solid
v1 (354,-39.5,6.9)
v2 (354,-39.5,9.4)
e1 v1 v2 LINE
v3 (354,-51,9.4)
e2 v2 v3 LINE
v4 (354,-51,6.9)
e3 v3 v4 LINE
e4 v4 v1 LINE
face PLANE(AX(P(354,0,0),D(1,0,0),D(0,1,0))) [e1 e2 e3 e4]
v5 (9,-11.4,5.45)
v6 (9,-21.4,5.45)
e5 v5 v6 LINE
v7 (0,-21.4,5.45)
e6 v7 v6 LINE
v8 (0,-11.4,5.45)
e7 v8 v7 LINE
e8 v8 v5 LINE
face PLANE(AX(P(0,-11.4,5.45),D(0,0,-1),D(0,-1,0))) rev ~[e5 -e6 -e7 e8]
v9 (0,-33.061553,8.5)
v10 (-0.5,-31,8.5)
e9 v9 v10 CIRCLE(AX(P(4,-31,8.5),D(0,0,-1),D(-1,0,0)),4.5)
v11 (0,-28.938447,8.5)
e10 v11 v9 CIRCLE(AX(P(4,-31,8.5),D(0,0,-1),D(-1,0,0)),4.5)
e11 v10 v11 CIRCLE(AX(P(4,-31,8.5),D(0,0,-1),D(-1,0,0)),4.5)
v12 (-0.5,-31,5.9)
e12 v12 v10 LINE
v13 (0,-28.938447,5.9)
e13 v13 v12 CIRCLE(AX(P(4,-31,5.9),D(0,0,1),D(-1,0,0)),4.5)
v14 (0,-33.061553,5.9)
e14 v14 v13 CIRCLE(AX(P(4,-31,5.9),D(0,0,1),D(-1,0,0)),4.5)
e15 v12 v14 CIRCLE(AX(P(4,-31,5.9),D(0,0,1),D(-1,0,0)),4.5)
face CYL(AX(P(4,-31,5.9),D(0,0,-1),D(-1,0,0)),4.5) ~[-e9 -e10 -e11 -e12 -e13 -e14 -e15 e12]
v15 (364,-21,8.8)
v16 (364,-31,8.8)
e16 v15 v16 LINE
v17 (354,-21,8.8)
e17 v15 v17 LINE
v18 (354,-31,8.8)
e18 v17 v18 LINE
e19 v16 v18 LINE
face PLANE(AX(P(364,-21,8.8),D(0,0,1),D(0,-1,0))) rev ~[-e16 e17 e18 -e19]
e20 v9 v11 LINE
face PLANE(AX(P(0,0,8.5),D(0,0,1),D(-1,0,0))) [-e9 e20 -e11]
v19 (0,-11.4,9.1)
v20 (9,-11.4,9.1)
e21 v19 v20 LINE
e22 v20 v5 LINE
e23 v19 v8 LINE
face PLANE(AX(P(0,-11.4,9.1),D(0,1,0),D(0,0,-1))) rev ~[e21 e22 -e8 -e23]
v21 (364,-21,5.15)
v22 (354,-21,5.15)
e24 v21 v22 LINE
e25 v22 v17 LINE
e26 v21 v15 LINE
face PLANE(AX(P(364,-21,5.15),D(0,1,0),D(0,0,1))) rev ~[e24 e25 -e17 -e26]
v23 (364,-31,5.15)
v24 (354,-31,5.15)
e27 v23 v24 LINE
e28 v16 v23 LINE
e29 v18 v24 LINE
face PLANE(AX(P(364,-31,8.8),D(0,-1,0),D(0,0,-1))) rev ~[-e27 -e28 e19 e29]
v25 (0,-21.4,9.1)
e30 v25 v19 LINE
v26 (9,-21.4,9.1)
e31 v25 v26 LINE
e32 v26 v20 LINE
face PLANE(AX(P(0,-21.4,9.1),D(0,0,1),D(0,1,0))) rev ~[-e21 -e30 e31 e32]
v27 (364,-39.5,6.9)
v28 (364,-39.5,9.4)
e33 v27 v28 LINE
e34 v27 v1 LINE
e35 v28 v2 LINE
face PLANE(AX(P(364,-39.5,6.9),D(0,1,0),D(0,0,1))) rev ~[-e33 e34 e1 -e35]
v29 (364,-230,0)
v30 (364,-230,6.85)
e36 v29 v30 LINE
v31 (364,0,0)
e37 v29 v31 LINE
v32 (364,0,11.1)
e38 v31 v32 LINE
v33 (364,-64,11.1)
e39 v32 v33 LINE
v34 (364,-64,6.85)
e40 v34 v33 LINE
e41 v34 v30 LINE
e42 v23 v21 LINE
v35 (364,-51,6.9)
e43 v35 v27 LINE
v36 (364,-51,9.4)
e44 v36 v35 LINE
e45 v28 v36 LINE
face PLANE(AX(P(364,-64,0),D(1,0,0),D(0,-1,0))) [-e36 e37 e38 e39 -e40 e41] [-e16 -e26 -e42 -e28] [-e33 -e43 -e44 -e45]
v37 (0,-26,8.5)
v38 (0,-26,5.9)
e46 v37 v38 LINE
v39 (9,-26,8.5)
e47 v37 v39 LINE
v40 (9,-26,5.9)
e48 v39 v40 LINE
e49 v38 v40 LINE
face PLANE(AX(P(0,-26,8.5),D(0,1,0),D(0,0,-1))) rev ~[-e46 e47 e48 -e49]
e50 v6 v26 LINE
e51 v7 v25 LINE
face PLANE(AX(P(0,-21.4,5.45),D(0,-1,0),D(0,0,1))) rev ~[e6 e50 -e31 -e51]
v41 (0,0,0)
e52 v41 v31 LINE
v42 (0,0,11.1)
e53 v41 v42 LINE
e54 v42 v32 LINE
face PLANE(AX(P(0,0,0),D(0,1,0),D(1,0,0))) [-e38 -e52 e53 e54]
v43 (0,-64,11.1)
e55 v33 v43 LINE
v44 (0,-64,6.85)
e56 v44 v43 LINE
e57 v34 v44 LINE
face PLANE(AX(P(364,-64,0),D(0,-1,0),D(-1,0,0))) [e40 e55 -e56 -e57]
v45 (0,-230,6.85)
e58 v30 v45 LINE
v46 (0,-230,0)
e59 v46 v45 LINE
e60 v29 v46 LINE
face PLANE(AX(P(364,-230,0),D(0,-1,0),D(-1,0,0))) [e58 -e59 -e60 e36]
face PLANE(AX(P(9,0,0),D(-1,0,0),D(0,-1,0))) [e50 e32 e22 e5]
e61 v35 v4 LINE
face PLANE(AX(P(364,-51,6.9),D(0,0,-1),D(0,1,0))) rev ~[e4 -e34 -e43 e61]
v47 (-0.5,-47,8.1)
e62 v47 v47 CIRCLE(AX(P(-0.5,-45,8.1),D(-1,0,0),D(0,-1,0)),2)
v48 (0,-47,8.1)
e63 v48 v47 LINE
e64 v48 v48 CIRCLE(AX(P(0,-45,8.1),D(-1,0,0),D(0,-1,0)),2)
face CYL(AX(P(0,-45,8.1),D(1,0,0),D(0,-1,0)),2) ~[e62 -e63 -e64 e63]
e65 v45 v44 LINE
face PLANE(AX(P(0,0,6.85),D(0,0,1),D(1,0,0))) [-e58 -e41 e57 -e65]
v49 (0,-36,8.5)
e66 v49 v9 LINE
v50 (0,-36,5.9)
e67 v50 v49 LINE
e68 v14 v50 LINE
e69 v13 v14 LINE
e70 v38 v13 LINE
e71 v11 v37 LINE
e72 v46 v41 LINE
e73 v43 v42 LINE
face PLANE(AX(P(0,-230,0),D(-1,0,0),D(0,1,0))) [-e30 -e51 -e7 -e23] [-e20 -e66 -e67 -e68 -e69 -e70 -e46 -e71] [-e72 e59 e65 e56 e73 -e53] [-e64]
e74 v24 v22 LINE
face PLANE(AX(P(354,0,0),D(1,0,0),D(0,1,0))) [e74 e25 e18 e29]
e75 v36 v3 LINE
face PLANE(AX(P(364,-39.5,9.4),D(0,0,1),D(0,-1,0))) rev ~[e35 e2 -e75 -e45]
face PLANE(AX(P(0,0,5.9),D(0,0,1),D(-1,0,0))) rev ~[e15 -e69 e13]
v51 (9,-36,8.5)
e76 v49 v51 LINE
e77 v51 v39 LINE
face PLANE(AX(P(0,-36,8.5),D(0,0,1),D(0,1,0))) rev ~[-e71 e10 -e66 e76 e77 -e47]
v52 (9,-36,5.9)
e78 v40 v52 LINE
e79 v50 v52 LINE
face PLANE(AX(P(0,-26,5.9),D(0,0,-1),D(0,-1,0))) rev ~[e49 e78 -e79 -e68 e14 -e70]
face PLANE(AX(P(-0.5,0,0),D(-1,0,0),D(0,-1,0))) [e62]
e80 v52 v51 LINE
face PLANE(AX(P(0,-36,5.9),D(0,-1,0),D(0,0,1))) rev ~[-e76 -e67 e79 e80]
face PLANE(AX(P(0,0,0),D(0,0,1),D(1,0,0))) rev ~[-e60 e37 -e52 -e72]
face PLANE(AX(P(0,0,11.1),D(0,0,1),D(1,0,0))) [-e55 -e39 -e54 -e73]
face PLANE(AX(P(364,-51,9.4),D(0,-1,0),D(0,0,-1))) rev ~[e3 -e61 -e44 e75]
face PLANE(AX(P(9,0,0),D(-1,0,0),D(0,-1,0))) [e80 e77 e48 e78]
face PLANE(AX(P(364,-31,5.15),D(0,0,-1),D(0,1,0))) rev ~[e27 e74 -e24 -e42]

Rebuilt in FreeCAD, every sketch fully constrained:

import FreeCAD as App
import Part
import Sketcher
from FreeCAD import Vector
Q = App.Units.Quantity


def add_polygon(sketch, points):
    """Adds a closed chain of lines whose ends are joined by coincident constraints."""
    first, n = sketch.GeometryCount, len(points)
    for a, b in zip(points, points[1:] + points[:1]):
        sketch.addGeometry(Part.LineSegment(App.Vector(*a, 0), App.Vector(*b, 0)), False)
    for i in range(n):
        sketch.addConstraint(Sketcher.Constraint("Coincident", first + i, 2, first + (i + 1) % n, 1))

doc = App.newDocument("Part")
body = doc.addObject("PartDesign::Body", "Body")

# Sketch on XY plane
sketch1 = body.newObject("Sketcher::SketchObject", "Sketch")
sketch1.AttachmentSupport = (doc.getObject("XY_Plane"), [""])
sketch1.MapMode = "FlatFace"
add_polygon(sketch1, [(364, -64), (0, -64), (0, -230), (364, -230)])  # lines 0-3
sketch1.addConstraint([
    Sketcher.Constraint("Horizontal", 0),
    Sketcher.Constraint("Vertical", 1),
    Sketcher.Constraint("Horizontal", 2),
    Sketcher.Constraint("Vertical", 3),
    Sketcher.Constraint("PointOnObject", 0, 2, -2),
    Sketcher.Constraint("DistanceX", 0, 2, 0, 1, Q("364 mm")),
    Sketcher.Constraint("DistanceY", 1, 2, 1, 1, Q("166 mm")),
    Sketcher.Constraint("DistanceY", 0, 2, -1, 1, Q("64 mm")),
])
pad1 = body.newObject("PartDesign::Pad", "Pad")
pad1.Profile = sketch1
pad1.Length = 6.85

# Sketch on XY plane
sketch2 = body.newObject("Sketcher::SketchObject", "Sketch001")
sketch2.AttachmentSupport = (doc.getObject("XY_Plane"), [""])
sketch2.MapMode = "FlatFace"
add_polygon(sketch2, [(364, 0), (0, 0), (0, -64), (364, -64)])  # lines 0-3
sketch2.addConstraint([
    Sketcher.Constraint("Horizontal", 0),
    Sketcher.Constraint("Vertical", 1),
    Sketcher.Constraint("Horizontal", 2),
    Sketcher.Constraint("Vertical", 3),
    Sketcher.Constraint("Coincident", 0, 2, -1, 1),
    Sketcher.Constraint("DistanceX", 0, 2, 0, 1, Q("364 mm")),
    Sketcher.Constraint("DistanceY", 1, 2, 1, 1, Q("64 mm")),
])
pad2 = body.newObject("PartDesign::Pad", "Pad001")
pad2.Profile = sketch2
pad2.Length = 11.1

# Sketch on YZ plane
sketch3 = body.newObject("Sketcher::SketchObject", "Sketch002")
sketch3.AttachmentSupport = (doc.getObject("YZ_Plane"), [""])
sketch3.MapMode = "FlatFace"
sketch3.addGeometry(Part.Circle(Vector(-45, 8.1, 0), Vector(0, 0, 1), 2), False)
sketch3.addConstraint([
    Sketcher.Constraint("Diameter", 0, Q("4 mm")),
    Sketcher.Constraint("DistanceX", 0, 3, -1, 1, Q("45 mm")),
    Sketcher.Constraint("DistanceY", -1, 1, 0, 3, Q("8.1 mm")),
])
pad3 = body.newObject("PartDesign::Pad", "Pad002")
pad3.Profile = sketch3
pad3.Length = 0.5
pad3.Reversed = True

# Sketch on YZ plane
sketch4 = body.newObject("Sketcher::SketchObject", "Sketch003")
sketch4.AttachmentSupport = (doc.getObject("YZ_Plane"), [""])
sketch4.MapMode = "FlatFace"
add_polygon(sketch4, [(-36, 5.9), (-36, 8.5), (-26, 8.5), (-26, 5.9)])  # lines 0-3
add_polygon(sketch4, [(-21.4, 5.5), (-21.4, 9.1), (-11.4, 9.1), (-11.4, 5.5)])  # lines 4-7
sketch4.addConstraint([
    Sketcher.Constraint("Vertical", 0),
    Sketcher.Constraint("Horizontal", 1),
    Sketcher.Constraint("Vertical", 2),
    Sketcher.Constraint("Horizontal", 3),
    Sketcher.Constraint("Vertical", 4),
    Sketcher.Constraint("Horizontal", 5),
    Sketcher.Constraint("Vertical", 6),
    Sketcher.Constraint("Horizontal", 7),
    Sketcher.Constraint("Equal", 3, 5),
    Sketcher.Constraint("DistanceX", 1, 1, 1, 2, Q("10 mm")),
    Sketcher.Constraint("DistanceY", 0, 1, 0, 2, Q("2.6 mm")),
    Sketcher.Constraint("DistanceX", 0, 2, -1, 1, Q("36 mm")),
    Sketcher.Constraint("DistanceY", 4, 1, 4, 2, Q("3.65 mm")),
    Sketcher.Constraint("DistanceY", -1, 1, 0, 2, Q("8.5 mm")),
    Sketcher.Constraint("DistanceX", 4, 2, -1, 1, Q("21.4 mm")),
    Sketcher.Constraint("DistanceY", -1, 1, 4, 2, Q("9.1 mm")),
])
pocket1 = body.newObject("PartDesign::Pocket", "Pocket")
pocket1.Profile = sketch4
pocket1.Length = 9
pocket1.Reversed = True

# Sketch on XY plane
sketch5 = body.newObject("Sketcher::SketchObject", "Sketch004")
sketch5.AttachmentSupport = (doc.getObject("XY_Plane"), [""])
sketch5.MapMode = "FlatFace"
sketch5.AttachmentOffset = App.Placement(Vector(0, 0, 5.9), App.Rotation())
sketch5.addGeometry(Part.Circle(Vector(4, -31, 0), Vector(0, 0, 1), 4.5), False)
sketch5.addConstraint([
    Sketcher.Constraint("Diameter", 0, Q("9 mm")),
    Sketcher.Constraint("DistanceX", -1, 1, 0, 3, Q("4 mm")),
    Sketcher.Constraint("DistanceY", 0, 3, -1, 1, Q("31 mm")),
])
pad4 = body.newObject("PartDesign::Pad", "Pad003")
pad4.Profile = sketch5
pad4.Length = 2.6

# Sketch on YZ plane
sketch6 = body.newObject("Sketcher::SketchObject", "Sketch005")
sketch6.AttachmentSupport = (doc.getObject("YZ_Plane"), [""])
sketch6.MapMode = "FlatFace"
sketch6.AttachmentOffset = App.Placement(Vector(0, 0, 364), App.Rotation())
add_polygon(sketch6, [(-21, 5.2), (-21, 8.8), (-31, 8.8), (-31, 5.2)])  # lines 0-3
add_polygon(sketch6, [(-39.5, 6.9), (-39.5, 9.4), (-51, 9.4), (-51, 6.9)])  # lines 4-7
sketch6.addConstraint([
    Sketcher.Constraint("Vertical", 0),
    Sketcher.Constraint("Horizontal", 1),
    Sketcher.Constraint("Vertical", 2),
    Sketcher.Constraint("Horizontal", 3),
    Sketcher.Constraint("Vertical", 4),
    Sketcher.Constraint("Horizontal", 5),
    Sketcher.Constraint("Vertical", 6),
    Sketcher.Constraint("Horizontal", 7),
    Sketcher.Constraint("DistanceX", 1, 2, 1, 1, Q("10 mm")),
    Sketcher.Constraint("DistanceX", 5, 2, 5, 1, Q("11.5 mm")),
    Sketcher.Constraint("DistanceY", 4, 1, 4, 2, Q("2.5 mm")),
    Sketcher.Constraint("DistanceX", 0, 2, -1, 1, Q("21 mm")),
    Sketcher.Constraint("DistanceX", 5, 2, -1, 1, Q("51 mm")),
    Sketcher.Constraint("DistanceY", 0, 1, 0, 2, Q("3.65 mm")),
    Sketcher.Constraint("DistanceY", -1, 1, 0, 2, Q("8.8 mm")),
    Sketcher.Constraint("DistanceY", -1, 1, 4, 2, Q("9.4 mm")),
])
pocket2 = body.newObject("PartDesign::Pocket", "Pocket001")
pocket2.Profile = sketch6
pocket2.Length = 10

doc.recompute()
